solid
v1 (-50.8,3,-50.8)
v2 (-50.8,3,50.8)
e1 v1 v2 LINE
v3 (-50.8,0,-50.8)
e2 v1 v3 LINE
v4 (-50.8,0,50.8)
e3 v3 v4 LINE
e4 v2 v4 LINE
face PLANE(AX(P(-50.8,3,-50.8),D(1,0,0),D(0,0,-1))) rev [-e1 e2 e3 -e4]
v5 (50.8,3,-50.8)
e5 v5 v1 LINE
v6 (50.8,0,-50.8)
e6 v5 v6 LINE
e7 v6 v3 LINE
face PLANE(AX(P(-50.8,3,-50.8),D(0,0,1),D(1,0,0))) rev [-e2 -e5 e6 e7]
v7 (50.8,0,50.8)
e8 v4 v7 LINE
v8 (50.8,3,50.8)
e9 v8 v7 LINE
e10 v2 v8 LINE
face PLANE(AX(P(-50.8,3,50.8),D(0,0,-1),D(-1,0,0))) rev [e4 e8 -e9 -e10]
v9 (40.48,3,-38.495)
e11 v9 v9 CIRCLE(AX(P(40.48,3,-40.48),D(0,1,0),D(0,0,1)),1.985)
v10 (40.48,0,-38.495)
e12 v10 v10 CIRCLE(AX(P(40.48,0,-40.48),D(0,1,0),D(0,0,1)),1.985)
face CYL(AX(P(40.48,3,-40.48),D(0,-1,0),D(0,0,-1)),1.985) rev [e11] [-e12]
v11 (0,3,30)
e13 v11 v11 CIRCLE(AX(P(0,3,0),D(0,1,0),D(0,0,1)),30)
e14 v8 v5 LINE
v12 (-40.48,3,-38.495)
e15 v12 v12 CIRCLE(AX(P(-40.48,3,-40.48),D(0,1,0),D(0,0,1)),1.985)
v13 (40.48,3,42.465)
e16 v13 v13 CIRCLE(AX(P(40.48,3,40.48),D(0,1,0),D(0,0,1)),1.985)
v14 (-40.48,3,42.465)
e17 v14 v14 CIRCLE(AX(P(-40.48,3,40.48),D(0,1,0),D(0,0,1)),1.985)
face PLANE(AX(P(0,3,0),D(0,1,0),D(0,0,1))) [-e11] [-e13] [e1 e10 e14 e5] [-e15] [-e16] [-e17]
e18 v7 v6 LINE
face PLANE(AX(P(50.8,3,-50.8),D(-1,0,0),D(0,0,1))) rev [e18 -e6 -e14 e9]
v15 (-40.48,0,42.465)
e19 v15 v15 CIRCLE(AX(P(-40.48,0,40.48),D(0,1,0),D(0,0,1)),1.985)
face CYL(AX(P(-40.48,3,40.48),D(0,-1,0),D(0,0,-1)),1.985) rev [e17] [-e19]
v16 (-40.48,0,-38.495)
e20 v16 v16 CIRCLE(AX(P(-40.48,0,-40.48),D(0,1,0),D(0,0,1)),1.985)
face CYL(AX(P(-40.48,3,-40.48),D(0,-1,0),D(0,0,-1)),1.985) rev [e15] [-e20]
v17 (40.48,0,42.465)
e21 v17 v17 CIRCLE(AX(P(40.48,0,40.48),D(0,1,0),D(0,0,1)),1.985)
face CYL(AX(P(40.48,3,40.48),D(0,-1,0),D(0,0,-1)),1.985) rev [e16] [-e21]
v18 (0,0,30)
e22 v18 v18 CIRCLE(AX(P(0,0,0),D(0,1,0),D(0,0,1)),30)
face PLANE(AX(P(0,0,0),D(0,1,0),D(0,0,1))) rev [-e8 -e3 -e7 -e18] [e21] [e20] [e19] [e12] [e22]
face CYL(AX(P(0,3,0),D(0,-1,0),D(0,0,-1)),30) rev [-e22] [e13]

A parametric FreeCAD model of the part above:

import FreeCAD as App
import Part
import Sketcher

V = App.Vector
Q = App.Units.Quantity

doc = App.newDocument("Part")
body = doc.addObject("PartDesign::Body", "Body")

# Sketch on XZ plane
sketch1 = body.newObject("Sketcher::SketchObject", "Sketch")
sketch1.AttachmentSupport = (doc.getObject("XZ_Plane"), [""])
sketch1.MapMode = "FlatFace"
sketch1.addGeometry([
    Part.LineSegment(V(-50.8, -50.8, 0), V(-50.8, 50.8, 0)),  # 0
    Part.LineSegment(V(-50.8, 50.8, 0), V(50.8, 50.8, 0)),  # 1
    Part.LineSegment(V(50.8, 50.8, 0), V(50.8, -50.8, 0)),  # 2
    Part.LineSegment(V(50.8, -50.8, 0), V(-50.8, -50.8, 0)),  # 3
    Part.Circle(V(-40.48, 40.48, 0), V(0, 0, 1), 1.985),  # 4
    Part.Circle(V(40.48, 40.48, 0), V(0, 0, 1), 1.985),  # 5
    Part.Circle(V(-40.48, -40.48, 0), V(0, 0, 1), 1.985),  # 6
    Part.Circle(V(0, 0, 0), V(0, 0, 1), 30),  # 7
    Part.Circle(V(40.48, -40.48, 0), V(0, 0, 1), 1.985),  # 8
], False)
sketch1.addConstraint([
    Sketcher.Constraint("Coincident", 0, 2, 1, 1),
    Sketcher.Constraint("Coincident", 1, 2, 2, 1),
    Sketcher.Constraint("Coincident", 2, 2, 3, 1),
    Sketcher.Constraint("Coincident", 3, 2, 0, 1),
    Sketcher.Constraint("Vertical", 0),
    Sketcher.Constraint("Horizontal", 1),
    Sketcher.Constraint("Vertical", 2),
    Sketcher.Constraint("Horizontal", 3),
    Sketcher.Constraint("Coincident", 7, 3, -1, 1),
    Sketcher.Constraint("Equal", 4, 5),
    Sketcher.Constraint("Equal", 5, 6),
    Sketcher.Constraint("Equal", 6, 8),
    Sketcher.Constraint("Symmetric", 5, 3, 6, 3, -1, 1),
    Sketcher.Constraint("Symmetric", 4, 3, 8, 3, -1, 1),
    Sketcher.Constraint("Symmetric", 0, 2, 2, 2, -1, 1),
    Sketcher.Constraint("Symmetric", 4, 3, 5, 3, -2),
    Sketcher.Constraint("Equal", 3, 0),
    Sketcher.Constraint("Diameter", 7, Q("60 mm")),
    Sketcher.Constraint("Diameter", 4, Q("3.97 mm")),
    Sketcher.Constraint("DistanceX", 1, 1, 1, 2, Q("101.6 mm")),
    Sketcher.Constraint("DistanceX", 4, 3, -1, 1, Q("40.48 mm")),
    Sketcher.Constraint("DistanceY", -1, 1, 4, 3, Q("40.48 mm")),
])
pad1 = body.newObject("PartDesign::Pad", "Pad")
pad1.Profile = sketch1
pad1.Length = 3
pad1.Reversed = True

doc.recompute()
